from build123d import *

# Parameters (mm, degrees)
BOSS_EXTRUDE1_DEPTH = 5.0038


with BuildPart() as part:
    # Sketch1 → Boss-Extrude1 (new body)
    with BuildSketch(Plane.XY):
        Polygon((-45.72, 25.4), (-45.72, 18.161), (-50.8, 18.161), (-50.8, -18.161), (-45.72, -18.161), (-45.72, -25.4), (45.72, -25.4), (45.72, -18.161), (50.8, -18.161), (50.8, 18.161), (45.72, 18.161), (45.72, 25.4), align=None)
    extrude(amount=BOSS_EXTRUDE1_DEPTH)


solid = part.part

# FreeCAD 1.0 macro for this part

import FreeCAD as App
import Part
import Sketcher

V = App.Vector
Q = App.Units.Quantity

doc = App.newDocument("Part")
params = doc.addObject("Spreadsheet::Sheet", "Params")
for row, (alias, value) in enumerate([
    ("sketch1_width", "0.2 in"),
    ("sketch1_width2", "3.6 in"),
    ("sketch1_height", "1.43 in"),
    ("pad1_length", "0.197 in"),
], start=1):
    params.set(f"A{row}", alias)
    params.set(f"B{row}", "=" + value)
    params.setAlias(f"B{row}", alias)

body = doc.addObject("PartDesign::Body", "Body")

sketch1 = doc.addObject("Sketcher::SketchObject", "Sketch")
body.addObject(sketch1)
sketch1.AttachmentSupport = (doc.XY_Plane, [""])
sketch1.MapMode = "FlatFace"
sketch1.addGeometry(Part.LineSegment(V(-46, 25, 0), V(-46, 18, 0)), False)
sketch1.addGeometry(Part.LineSegment(V(-46, 18, 0), V(-51, 18, 0)), False)
sketch1.addGeometry(Part.LineSegment(V(-51, 18, 0), V(-51, -18, 0)), False)
sketch1.addGeometry(Part.LineSegment(V(-51, -18, 0), V(-46, -18, 0)), False)
sketch1.addGeometry(Part.LineSegment(V(-46, -18, 0), V(-46, -25, 0)), False)
sketch1.addGeometry(Part.LineSegment(V(-46, -25, 0), V(46, -25, 0)), False)
sketch1.addGeometry(Part.LineSegment(V(46, -25, 0), V(46, -18, 0)), False)
sketch1.addGeometry(Part.LineSegment(V(46, -18, 0), V(51, -18, 0)), False)
sketch1.addGeometry(Part.LineSegment(V(51, -18, 0), V(51, 18, 0)), False)
sketch1.addGeometry(Part.LineSegment(V(51, 18, 0), V(46, 18, 0)), False)
sketch1.addGeometry(Part.LineSegment(V(46, 18, 0), V(46, 25, 0)), False)
sketch1.addGeometry(Part.LineSegment(V(46, 25, 0), V(-46, 25, 0)), False)
sketch1.addConstraint(Sketcher.Constraint("Coincident", 0, 2, 1, 1))
sketch1.addConstraint(Sketcher.Constraint("Coincident", 1, 2, 2, 1))
sketch1.addConstraint(Sketcher.Constraint("Coincident", 2, 2, 3, 1))
sketch1.addConstraint(Sketcher.Constraint("Coincident", 3, 2, 4, 1))
sketch1.addConstraint(Sketcher.Constraint("Coincident", 4, 2, 5, 1))
sketch1.addConstraint(Sketcher.Constraint("Coincident", 5, 2, 6, 1))
sketch1.addConstraint(Sketcher.Constraint("Coincident", 6, 2, 7, 1))
sketch1.addConstraint(Sketcher.Constraint("Coincident", 7, 2, 8, 1))
sketch1.addConstraint(Sketcher.Constraint("Coincident", 8, 2, 9, 1))
sketch1.addConstraint(Sketcher.Constraint("Coincident", 9, 2, 10, 1))
sketch1.addConstraint(Sketcher.Constraint("Coincident", 10, 2, 11, 1))
sketch1.addConstraint(Sketcher.Constraint("Coincident", 11, 2, 0, 1))
sketch1.addConstraint(Sketcher.Constraint("Vertical", 0))
sketch1.addConstraint(Sketcher.Constraint("Horizontal", 1))
sketch1.addConstraint(Sketcher.Constraint("Vertical", 2))
sketch1.addConstraint(Sketcher.Constraint("Horizontal", 3))
sketch1.addConstraint(Sketcher.Constraint("Vertical", 4))
sketch1.addConstraint(Sketcher.Constraint("Horizontal", 5))
sketch1.addConstraint(Sketcher.Constraint("Vertical", 6))
sketch1.addConstraint(Sketcher.Constraint("Horizontal", 7))
sketch1.addConstraint(Sketcher.Constraint("Vertical", 8))
sketch1.addConstraint(Sketcher.Constraint("Horizontal", 9))
sketch1.addConstraint(Sketcher.Constraint("Vertical", 10))
sketch1.addConstraint(Sketcher.Constraint("Horizontal", 11))
sketch1.addConstraint(Sketcher.Constraint("Symmetric", 0, 2, 6, 2, -1, 1))
sketch1.addConstraint(Sketcher.Constraint("Symmetric", 2, 2, 8, 2, -1, 1))
sketch1.addConstraint(Sketcher.Constraint("Symmetric", 4, 2, 10, 2, -1, 1))
sketch1.addConstraint(Sketcher.Constraint("Symmetric", 3, 2, 6, 2, -2))
sketch1.addConstraint(Sketcher.Constraint("DistanceX", 1, 2, 1, 1, Q("0.2 in")))
sketch1.addConstraint(Sketcher.Constraint("DistanceX", 5, 1, 5, 2, Q("3.6 in")))
sketch1.addConstraint(Sketcher.Constraint("DistanceY", 4, 2, -1, 1, Q("1 in")))
sketch1.addConstraint(Sketcher.Constraint("DistanceY", 2, 2, 2, 1, Q("1.43 in")))
sketch1.setExpression("Constraints[28]", "Params.sketch1_width")
sketch1.setExpression("Constraints[29]", "Params.sketch1_width2")
sketch1.setExpression("Constraints[31]", "Params.sketch1_height")
pad1 = doc.addObject("PartDesign::Pad", "Pad")
body.addObject(pad1)
pad1.Profile = sketch1
pad1.setExpression("Length", "Params.pad1_length")

doc.recompute()
